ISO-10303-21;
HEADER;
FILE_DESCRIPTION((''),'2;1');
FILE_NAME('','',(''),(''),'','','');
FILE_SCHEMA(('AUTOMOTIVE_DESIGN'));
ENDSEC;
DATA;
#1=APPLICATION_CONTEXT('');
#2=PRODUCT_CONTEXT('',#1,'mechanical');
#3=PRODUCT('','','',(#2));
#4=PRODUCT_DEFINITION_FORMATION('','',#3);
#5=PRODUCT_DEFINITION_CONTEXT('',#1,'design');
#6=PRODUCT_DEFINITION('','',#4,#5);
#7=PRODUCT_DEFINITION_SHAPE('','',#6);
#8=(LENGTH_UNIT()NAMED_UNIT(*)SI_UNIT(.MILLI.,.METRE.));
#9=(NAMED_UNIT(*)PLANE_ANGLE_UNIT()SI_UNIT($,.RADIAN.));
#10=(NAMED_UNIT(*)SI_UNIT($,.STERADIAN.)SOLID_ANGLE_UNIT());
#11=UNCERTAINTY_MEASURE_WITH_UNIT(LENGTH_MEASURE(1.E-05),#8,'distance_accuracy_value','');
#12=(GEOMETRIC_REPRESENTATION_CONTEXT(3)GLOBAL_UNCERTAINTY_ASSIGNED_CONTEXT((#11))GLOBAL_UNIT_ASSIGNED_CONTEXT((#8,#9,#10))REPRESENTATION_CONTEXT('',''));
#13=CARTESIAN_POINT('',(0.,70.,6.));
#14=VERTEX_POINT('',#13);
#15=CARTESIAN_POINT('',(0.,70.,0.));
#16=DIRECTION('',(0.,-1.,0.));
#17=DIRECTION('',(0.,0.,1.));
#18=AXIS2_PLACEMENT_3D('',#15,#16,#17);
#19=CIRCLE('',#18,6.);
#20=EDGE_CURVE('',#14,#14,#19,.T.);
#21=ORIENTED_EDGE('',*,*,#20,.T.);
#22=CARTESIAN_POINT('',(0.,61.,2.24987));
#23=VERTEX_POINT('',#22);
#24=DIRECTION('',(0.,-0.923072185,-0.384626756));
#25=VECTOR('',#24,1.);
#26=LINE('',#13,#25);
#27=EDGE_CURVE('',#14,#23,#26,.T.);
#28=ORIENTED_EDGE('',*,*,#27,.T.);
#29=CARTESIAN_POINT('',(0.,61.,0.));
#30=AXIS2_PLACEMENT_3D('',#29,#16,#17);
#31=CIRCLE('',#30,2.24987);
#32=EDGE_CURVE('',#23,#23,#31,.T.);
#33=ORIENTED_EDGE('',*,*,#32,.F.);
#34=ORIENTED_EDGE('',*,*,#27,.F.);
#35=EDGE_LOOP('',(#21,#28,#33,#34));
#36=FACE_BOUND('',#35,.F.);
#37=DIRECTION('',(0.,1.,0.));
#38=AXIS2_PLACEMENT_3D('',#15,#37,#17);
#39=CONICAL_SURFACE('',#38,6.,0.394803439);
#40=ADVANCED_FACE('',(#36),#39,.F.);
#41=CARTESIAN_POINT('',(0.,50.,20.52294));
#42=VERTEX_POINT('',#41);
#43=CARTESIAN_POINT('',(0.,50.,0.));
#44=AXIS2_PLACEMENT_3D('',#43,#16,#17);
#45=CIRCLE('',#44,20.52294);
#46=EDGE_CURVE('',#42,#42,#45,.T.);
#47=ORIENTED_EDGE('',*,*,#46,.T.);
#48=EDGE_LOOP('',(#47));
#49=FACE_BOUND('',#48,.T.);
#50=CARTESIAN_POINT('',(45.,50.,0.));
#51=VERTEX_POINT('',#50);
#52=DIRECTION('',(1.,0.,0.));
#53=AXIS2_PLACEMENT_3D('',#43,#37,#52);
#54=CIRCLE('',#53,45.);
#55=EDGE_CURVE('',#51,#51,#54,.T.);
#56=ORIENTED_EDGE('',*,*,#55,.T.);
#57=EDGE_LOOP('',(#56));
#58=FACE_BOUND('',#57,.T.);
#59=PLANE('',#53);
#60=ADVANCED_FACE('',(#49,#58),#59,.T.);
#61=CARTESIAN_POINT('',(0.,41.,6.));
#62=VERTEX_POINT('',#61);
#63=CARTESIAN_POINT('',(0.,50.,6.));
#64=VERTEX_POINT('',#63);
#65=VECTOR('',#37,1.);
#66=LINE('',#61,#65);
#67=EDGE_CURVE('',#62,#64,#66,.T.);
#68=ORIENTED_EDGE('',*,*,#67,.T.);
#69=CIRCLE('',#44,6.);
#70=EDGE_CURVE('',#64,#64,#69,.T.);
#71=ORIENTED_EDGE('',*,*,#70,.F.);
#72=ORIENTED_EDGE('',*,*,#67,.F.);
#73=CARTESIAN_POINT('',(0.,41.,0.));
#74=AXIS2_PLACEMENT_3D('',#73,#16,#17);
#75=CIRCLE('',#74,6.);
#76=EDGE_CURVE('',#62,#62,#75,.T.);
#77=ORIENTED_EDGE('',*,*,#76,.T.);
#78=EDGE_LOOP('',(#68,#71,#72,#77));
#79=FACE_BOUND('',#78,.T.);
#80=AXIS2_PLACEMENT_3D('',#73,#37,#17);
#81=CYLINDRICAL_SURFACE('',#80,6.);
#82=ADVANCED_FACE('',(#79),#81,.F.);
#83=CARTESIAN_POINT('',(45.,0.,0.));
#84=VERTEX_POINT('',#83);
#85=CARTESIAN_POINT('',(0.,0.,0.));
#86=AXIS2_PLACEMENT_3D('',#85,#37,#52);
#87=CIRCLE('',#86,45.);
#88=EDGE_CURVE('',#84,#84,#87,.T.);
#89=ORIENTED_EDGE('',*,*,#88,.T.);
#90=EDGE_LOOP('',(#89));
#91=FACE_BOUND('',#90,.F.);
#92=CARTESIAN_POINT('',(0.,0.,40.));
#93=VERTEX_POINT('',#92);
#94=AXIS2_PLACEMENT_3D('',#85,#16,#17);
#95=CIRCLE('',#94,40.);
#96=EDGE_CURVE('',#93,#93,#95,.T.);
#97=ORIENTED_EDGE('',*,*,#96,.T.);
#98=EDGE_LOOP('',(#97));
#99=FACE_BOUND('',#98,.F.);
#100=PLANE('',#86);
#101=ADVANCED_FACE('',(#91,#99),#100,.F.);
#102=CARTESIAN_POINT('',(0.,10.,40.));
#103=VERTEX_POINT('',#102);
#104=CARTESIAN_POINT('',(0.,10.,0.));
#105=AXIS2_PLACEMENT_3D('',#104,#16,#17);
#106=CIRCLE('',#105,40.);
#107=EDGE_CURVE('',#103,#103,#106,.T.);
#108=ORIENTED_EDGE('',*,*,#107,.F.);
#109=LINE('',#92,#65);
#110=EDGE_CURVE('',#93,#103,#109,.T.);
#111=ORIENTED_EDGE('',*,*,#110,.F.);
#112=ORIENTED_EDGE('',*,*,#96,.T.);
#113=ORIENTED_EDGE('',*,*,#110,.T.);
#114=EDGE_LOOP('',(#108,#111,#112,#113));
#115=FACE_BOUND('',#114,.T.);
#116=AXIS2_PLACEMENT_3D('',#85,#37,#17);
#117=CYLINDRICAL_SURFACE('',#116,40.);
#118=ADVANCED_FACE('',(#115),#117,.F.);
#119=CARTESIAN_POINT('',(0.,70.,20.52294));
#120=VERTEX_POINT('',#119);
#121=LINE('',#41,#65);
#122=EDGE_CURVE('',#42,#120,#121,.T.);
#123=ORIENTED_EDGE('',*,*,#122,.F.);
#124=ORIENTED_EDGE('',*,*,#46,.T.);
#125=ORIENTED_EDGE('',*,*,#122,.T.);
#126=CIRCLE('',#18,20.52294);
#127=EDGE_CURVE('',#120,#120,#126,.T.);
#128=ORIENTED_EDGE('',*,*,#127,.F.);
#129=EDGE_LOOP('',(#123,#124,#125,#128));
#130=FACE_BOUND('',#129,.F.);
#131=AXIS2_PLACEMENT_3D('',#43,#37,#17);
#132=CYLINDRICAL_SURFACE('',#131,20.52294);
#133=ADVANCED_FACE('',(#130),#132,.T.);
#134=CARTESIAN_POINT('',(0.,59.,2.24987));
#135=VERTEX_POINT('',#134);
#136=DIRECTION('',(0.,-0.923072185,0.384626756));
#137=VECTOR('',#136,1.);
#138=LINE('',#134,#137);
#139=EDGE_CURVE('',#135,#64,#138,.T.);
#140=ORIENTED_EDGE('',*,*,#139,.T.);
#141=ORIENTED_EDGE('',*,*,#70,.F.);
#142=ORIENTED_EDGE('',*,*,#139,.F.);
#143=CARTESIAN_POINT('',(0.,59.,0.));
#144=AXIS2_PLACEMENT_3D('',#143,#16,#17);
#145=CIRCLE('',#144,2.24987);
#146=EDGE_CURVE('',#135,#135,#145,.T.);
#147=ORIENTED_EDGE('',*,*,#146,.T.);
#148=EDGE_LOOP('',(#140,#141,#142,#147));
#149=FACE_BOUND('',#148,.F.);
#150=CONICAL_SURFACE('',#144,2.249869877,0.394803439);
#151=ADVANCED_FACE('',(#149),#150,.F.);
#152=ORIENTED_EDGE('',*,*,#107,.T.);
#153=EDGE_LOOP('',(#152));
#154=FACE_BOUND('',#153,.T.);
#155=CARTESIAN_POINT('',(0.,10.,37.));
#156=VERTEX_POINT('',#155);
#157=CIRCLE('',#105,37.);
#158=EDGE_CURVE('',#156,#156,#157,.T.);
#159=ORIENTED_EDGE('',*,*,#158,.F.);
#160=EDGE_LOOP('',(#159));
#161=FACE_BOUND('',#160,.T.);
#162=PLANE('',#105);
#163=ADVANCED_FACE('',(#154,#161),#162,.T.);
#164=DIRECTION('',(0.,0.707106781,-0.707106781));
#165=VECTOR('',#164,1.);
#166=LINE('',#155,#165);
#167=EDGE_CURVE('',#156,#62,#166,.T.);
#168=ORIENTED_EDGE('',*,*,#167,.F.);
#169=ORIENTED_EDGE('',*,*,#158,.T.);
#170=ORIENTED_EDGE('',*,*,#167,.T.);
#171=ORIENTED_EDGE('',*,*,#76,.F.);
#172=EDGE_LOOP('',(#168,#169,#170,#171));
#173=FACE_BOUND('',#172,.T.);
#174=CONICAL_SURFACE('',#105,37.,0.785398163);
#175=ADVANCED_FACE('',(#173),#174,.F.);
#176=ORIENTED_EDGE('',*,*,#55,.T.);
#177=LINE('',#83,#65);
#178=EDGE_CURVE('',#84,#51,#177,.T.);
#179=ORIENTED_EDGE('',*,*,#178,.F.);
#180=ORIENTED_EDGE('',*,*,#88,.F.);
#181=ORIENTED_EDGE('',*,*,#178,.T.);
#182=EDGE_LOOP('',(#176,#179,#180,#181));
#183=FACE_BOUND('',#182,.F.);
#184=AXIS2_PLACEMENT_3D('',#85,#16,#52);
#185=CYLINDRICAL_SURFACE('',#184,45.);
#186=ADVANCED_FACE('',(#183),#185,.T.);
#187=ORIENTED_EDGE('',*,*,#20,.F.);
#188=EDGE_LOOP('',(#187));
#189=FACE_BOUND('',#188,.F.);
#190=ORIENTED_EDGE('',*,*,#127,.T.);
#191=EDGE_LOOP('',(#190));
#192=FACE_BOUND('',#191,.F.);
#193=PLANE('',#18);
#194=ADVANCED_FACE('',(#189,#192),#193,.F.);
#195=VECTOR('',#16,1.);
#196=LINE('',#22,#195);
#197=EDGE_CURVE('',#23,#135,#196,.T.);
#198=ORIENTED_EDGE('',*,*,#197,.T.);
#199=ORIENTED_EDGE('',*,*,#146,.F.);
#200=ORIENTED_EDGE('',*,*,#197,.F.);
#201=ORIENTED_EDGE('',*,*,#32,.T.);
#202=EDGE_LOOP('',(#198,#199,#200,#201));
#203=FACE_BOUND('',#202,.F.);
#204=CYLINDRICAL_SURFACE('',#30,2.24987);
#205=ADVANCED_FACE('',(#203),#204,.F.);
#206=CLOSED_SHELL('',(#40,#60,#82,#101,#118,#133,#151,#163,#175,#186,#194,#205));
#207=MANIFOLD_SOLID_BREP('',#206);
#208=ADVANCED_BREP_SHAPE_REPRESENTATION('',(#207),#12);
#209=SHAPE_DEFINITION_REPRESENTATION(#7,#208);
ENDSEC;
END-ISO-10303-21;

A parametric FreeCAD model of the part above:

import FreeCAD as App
import Part
import Sketcher

doc = App.newDocument("Part")
body = doc.addObject("PartDesign::Body", "Body")

# Sketch on XZ plane
sketch1 = body.newObject("Sketcher::SketchObject", "Sketch")
sketch1.AttachmentSupport = (doc.getObject("XZ_Plane"), [""])
sketch1.MapMode = "FlatFace"
sketch1.addGeometry(Part.Circle(App.Vector(0, 0, 0), App.Vector(0, 0, 1), 45), False)
sketch1.addConstraint([
    Sketcher.Constraint("Coincident", 0, 3, -1, 1),
    Sketcher.Constraint("Diameter", 0, 90.0),
])
pad1 = body.newObject("PartDesign::Pad", "Pad")
pad1.Profile = sketch1
pad1.Length = 50
pad1.Reversed = True

# Sketch on YZ plane
sketch2 = body.newObject("Sketcher::SketchObject", "Sketch001")
sketch2.AttachmentSupport = (doc.getObject("YZ_Plane"), [""])
sketch2.MapMode = "FlatFace"
sketch2.addGeometry([
    Part.LineSegment(App.Vector(0, 0, 0), App.Vector(50, 0, 0)),  # 0
    Part.LineSegment(App.Vector(50, 0, 0), App.Vector(50, 6, 0)),  # 1
    Part.LineSegment(App.Vector(50, 6, 0), App.Vector(41, 6, 0)),  # 2
    Part.LineSegment(App.Vector(41, 6, 0), App.Vector(10, 37, 0)),  # 3
    Part.LineSegment(App.Vector(10, 37, 0), App.Vector(10, 40, 0)),  # 4
    Part.LineSegment(App.Vector(10, 40, 0), App.Vector(0, 40, 0)),  # 5
    Part.LineSegment(App.Vector(0, 40, 0), App.Vector(0, 0, 0)),  # 6
], False)
sketch2.addConstraint([
    Sketcher.Constraint("Coincident", 0, 2, 1, 1),
    Sketcher.Constraint("Coincident", 1, 2, 2, 1),
    Sketcher.Constraint("Coincident", 2, 2, 3, 1),
    Sketcher.Constraint("Coincident", 3, 2, 4, 1),
    Sketcher.Constraint("Coincident", 4, 2, 5, 1),
    Sketcher.Constraint("Coincident", 5, 2, 6, 1),
    Sketcher.Constraint("Coincident", 6, 2, 0, 1),
    Sketcher.Constraint("Horizontal", 0),
    Sketcher.Constraint("Vertical", 1),
    Sketcher.Constraint("Horizontal", 2),
    Sketcher.Constraint("Vertical", 4),
    Sketcher.Constraint("Horizontal", 5),
    Sketcher.Constraint("Vertical", 6),
    Sketcher.Constraint("Coincident", 6, 2, -1, 1),
    Sketcher.Constraint("DistanceX", 0, 1, 0, 2, 50.0),
    Sketcher.Constraint("DistanceX", 2, 2, 2, 1, 9.0),
    Sketcher.Constraint("DistanceX", 5, 2, 5, 1, 10.0),
    Sketcher.Constraint("DistanceY", 1, 1, 1, 2, 6.0),
    Sketcher.Constraint("DistanceY", 4, 1, 4, 2, 3.0),
    Sketcher.Constraint("DistanceY", 6, 2, 6, 1, 40.0),
])
groove = body.newObject("PartDesign::Groove", "Groove")
groove.Profile = sketch2
groove.ReferenceAxis = (sketch2, ["H_Axis"])
groove.Angle = 360

# Sketch on YZ plane
sketch3 = body.newObject("Sketcher::SketchObject", "Sketch002")
sketch3.AttachmentSupport = (doc.getObject("YZ_Plane"), [""])
sketch3.MapMode = "FlatFace"
sketch3.addGeometry([
    Part.LineSegment(App.Vector(50, 20.52294, 0), App.Vector(50, 6, 0)),  # 0
    Part.LineSegment(App.Vector(50, 6, 0), App.Vector(59, 2.24987, 0)),  # 1
    Part.LineSegment(App.Vector(59, 2.24987, 0), App.Vector(61, 2.24987, 0)),  # 2
    Part.LineSegment(App.Vector(61, 2.24987, 0), App.Vector(70, 6, 0)),  # 3
    Part.LineSegment(App.Vector(70, 6, 0), App.Vector(70, 20.52294, 0)),  # 4
    Part.LineSegment(App.Vector(70, 20.52294, 0), App.Vector(50, 20.52294, 0)),  # 5
], False)
sketch3.addConstraint([
    Sketcher.Constraint("Coincident", 0, 2, 1, 1),
    Sketcher.Constraint("Coincident", 1, 2, 2, 1),
    Sketcher.Constraint("Coincident", 2, 2, 3, 1),
    Sketcher.Constraint("Coincident", 3, 2, 4, 1),
    Sketcher.Constraint("Coincident", 4, 2, 5, 1),
    Sketcher.Constraint("Coincident", 5, 2, 0, 1),
    Sketcher.Constraint("Vertical", 0),
    Sketcher.Constraint("Horizontal", 2),
    Sketcher.Constraint("Vertical", 4),
    Sketcher.Constraint("Horizontal", 5),
    Sketcher.Constraint("Horizontal", 0, 2, 3, 2),
    Sketcher.Constraint("Equal", 1, 3),
    Sketcher.Constraint("DistanceX", 2, 1, 2, 2, 2.0),
    Sketcher.Constraint("DistanceX", 5, 2, 5, 1, 20.0),
    Sketcher.Constraint("DistanceX", -1, 1, 0, 2, 50.0),
    Sketcher.Constraint("DistanceY", -1, 1, 0, 2, 6.0),
    Sketcher.Constraint("DistanceY", 0, 2, 0, 1, 14.52294),
    Sketcher.Constraint("Distance", 1, 9.75005),
])
revolution = body.newObject("PartDesign::Revolution", "Revolution")
revolution.Profile = sketch3
revolution.ReferenceAxis = (sketch3, ["H_Axis"])
revolution.Angle = 360

doc.recompute()
